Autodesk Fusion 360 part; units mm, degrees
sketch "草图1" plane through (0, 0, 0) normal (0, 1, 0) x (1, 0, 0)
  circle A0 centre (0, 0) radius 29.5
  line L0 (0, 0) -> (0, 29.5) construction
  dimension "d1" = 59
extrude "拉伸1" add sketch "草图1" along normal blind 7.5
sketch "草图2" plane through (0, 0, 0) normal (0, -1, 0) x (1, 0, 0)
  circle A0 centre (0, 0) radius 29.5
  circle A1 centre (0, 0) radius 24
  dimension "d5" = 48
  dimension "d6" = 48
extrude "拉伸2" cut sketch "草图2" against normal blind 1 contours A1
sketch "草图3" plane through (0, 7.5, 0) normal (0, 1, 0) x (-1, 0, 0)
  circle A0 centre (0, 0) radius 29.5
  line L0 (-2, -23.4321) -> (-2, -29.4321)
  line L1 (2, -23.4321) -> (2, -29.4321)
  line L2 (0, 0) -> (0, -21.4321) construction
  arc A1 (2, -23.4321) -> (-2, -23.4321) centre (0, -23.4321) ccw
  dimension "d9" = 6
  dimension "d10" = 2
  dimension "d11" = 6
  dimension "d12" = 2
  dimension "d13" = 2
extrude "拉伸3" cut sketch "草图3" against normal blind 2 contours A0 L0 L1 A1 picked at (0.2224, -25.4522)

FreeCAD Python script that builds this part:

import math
import FreeCAD as App
import Part
import Sketcher

V = App.Vector

doc = App.newDocument("Part")
body = doc.addObject("PartDesign::Body", "Body")

# Sketch on XZ plane
sketch1 = doc.addObject("Sketcher::SketchObject", "Sketch")
body.addObject(sketch1)
sketch1.AttachmentSupport = (doc.XZ_Plane, [""])
sketch1.MapMode = "FlatFace"
sketch1.addGeometry(Part.Circle(V(0, 0, 0), V(0, 0, 1), 30), False)
sketch1.addConstraint(Sketcher.Constraint("Coincident", 0, 3, -1, 1))
sketch1.addConstraint(Sketcher.Constraint("Diameter", 0, 59.0))
pad1 = doc.addObject("PartDesign::Pad", "Pad")
body.addObject(pad1)
pad1.Profile = sketch1
pad1.Length = 7.5
pad1.Reversed = True

# Sketch on XZ plane
sketch2 = doc.addObject("Sketcher::SketchObject", "Sketch001")
body.addObject(sketch2)
sketch2.AttachmentSupport = (doc.XZ_Plane, [""])
sketch2.MapMode = "FlatFace"
sketch2.addGeometry(Part.Circle(V(0, 0, 0), V(0, 0, 1), 24), False)
sketch2.addConstraint(Sketcher.Constraint("Coincident", 0, 3, -1, 1))
sketch2.addConstraint(Sketcher.Constraint("Diameter", 0, 48.0))
pocket1 = doc.addObject("PartDesign::Pocket", "Pocket")
body.addObject(pocket1)
pocket1.Profile = sketch2
pocket1.Length = 1

# Sketch on XZ plane
sketch3 = doc.addObject("Sketcher::SketchObject", "Sketch002")
body.addObject(sketch3)
sketch3.AttachmentSupport = (doc.XZ_Plane, [""])
sketch3.MapMode = "FlatFace"
sketch3.AttachmentOffset = App.Placement(V(0, 0, -7.5), App.Rotation())
sketch3.addGeometry(Part.LineSegment(V(2, -23.4, 0), V(2, -29.4, 0)), False)
sketch3.addGeometry(Part.ArcOfCircle(Part.Circle(V(0, 0, 0), V(0, 0, 1), 29.5), math.radians(-93.89), math.radians(-86.11)), False)
sketch3.addGeometry(Part.LineSegment(V(-2, -29.4, 0), V(-2, -23.4, 0)), False)
sketch3.addGeometry(Part.ArcOfCircle(Part.Circle(V(0, -23.4, 0), V(0, 0, 1), 2), math.radians(0), math.radians(180)), False)
sketch3.addConstraint(Sketcher.Constraint("Coincident", 0, 2, 1, 2))
sketch3.addConstraint(Sketcher.Constraint("Coincident", 1, 1, 2, 1))
sketch3.addConstraint(Sketcher.Constraint("Tangent", 2, 2, 3, 2))
sketch3.addConstraint(Sketcher.Constraint("Tangent", 3, 1, 0, 1))
sketch3.addConstraint(Sketcher.Constraint("Vertical", 0))
sketch3.addConstraint(Sketcher.Constraint("Vertical", 2))
sketch3.addConstraint(Sketcher.Constraint("Coincident", 1, 3, -1, 1))
sketch3.addConstraint(Sketcher.Constraint("PointOnObject", 3, 3, -2))
sketch3.addConstraint(Sketcher.Constraint("Radius", 3, 2.0))
sketch3.addConstraint(Sketcher.Constraint("DistanceY", 0, 2, 0, 1, 6.0))
sketch3.addConstraint(Sketcher.Constraint("Radius", 1, 29.5))
pocket2 = doc.addObject("PartDesign::Pocket", "Pocket001")
body.addObject(pocket2)
pocket2.Profile = sketch3
pocket2.Length = 2
pocket2.Reversed = True

doc.recompute()
